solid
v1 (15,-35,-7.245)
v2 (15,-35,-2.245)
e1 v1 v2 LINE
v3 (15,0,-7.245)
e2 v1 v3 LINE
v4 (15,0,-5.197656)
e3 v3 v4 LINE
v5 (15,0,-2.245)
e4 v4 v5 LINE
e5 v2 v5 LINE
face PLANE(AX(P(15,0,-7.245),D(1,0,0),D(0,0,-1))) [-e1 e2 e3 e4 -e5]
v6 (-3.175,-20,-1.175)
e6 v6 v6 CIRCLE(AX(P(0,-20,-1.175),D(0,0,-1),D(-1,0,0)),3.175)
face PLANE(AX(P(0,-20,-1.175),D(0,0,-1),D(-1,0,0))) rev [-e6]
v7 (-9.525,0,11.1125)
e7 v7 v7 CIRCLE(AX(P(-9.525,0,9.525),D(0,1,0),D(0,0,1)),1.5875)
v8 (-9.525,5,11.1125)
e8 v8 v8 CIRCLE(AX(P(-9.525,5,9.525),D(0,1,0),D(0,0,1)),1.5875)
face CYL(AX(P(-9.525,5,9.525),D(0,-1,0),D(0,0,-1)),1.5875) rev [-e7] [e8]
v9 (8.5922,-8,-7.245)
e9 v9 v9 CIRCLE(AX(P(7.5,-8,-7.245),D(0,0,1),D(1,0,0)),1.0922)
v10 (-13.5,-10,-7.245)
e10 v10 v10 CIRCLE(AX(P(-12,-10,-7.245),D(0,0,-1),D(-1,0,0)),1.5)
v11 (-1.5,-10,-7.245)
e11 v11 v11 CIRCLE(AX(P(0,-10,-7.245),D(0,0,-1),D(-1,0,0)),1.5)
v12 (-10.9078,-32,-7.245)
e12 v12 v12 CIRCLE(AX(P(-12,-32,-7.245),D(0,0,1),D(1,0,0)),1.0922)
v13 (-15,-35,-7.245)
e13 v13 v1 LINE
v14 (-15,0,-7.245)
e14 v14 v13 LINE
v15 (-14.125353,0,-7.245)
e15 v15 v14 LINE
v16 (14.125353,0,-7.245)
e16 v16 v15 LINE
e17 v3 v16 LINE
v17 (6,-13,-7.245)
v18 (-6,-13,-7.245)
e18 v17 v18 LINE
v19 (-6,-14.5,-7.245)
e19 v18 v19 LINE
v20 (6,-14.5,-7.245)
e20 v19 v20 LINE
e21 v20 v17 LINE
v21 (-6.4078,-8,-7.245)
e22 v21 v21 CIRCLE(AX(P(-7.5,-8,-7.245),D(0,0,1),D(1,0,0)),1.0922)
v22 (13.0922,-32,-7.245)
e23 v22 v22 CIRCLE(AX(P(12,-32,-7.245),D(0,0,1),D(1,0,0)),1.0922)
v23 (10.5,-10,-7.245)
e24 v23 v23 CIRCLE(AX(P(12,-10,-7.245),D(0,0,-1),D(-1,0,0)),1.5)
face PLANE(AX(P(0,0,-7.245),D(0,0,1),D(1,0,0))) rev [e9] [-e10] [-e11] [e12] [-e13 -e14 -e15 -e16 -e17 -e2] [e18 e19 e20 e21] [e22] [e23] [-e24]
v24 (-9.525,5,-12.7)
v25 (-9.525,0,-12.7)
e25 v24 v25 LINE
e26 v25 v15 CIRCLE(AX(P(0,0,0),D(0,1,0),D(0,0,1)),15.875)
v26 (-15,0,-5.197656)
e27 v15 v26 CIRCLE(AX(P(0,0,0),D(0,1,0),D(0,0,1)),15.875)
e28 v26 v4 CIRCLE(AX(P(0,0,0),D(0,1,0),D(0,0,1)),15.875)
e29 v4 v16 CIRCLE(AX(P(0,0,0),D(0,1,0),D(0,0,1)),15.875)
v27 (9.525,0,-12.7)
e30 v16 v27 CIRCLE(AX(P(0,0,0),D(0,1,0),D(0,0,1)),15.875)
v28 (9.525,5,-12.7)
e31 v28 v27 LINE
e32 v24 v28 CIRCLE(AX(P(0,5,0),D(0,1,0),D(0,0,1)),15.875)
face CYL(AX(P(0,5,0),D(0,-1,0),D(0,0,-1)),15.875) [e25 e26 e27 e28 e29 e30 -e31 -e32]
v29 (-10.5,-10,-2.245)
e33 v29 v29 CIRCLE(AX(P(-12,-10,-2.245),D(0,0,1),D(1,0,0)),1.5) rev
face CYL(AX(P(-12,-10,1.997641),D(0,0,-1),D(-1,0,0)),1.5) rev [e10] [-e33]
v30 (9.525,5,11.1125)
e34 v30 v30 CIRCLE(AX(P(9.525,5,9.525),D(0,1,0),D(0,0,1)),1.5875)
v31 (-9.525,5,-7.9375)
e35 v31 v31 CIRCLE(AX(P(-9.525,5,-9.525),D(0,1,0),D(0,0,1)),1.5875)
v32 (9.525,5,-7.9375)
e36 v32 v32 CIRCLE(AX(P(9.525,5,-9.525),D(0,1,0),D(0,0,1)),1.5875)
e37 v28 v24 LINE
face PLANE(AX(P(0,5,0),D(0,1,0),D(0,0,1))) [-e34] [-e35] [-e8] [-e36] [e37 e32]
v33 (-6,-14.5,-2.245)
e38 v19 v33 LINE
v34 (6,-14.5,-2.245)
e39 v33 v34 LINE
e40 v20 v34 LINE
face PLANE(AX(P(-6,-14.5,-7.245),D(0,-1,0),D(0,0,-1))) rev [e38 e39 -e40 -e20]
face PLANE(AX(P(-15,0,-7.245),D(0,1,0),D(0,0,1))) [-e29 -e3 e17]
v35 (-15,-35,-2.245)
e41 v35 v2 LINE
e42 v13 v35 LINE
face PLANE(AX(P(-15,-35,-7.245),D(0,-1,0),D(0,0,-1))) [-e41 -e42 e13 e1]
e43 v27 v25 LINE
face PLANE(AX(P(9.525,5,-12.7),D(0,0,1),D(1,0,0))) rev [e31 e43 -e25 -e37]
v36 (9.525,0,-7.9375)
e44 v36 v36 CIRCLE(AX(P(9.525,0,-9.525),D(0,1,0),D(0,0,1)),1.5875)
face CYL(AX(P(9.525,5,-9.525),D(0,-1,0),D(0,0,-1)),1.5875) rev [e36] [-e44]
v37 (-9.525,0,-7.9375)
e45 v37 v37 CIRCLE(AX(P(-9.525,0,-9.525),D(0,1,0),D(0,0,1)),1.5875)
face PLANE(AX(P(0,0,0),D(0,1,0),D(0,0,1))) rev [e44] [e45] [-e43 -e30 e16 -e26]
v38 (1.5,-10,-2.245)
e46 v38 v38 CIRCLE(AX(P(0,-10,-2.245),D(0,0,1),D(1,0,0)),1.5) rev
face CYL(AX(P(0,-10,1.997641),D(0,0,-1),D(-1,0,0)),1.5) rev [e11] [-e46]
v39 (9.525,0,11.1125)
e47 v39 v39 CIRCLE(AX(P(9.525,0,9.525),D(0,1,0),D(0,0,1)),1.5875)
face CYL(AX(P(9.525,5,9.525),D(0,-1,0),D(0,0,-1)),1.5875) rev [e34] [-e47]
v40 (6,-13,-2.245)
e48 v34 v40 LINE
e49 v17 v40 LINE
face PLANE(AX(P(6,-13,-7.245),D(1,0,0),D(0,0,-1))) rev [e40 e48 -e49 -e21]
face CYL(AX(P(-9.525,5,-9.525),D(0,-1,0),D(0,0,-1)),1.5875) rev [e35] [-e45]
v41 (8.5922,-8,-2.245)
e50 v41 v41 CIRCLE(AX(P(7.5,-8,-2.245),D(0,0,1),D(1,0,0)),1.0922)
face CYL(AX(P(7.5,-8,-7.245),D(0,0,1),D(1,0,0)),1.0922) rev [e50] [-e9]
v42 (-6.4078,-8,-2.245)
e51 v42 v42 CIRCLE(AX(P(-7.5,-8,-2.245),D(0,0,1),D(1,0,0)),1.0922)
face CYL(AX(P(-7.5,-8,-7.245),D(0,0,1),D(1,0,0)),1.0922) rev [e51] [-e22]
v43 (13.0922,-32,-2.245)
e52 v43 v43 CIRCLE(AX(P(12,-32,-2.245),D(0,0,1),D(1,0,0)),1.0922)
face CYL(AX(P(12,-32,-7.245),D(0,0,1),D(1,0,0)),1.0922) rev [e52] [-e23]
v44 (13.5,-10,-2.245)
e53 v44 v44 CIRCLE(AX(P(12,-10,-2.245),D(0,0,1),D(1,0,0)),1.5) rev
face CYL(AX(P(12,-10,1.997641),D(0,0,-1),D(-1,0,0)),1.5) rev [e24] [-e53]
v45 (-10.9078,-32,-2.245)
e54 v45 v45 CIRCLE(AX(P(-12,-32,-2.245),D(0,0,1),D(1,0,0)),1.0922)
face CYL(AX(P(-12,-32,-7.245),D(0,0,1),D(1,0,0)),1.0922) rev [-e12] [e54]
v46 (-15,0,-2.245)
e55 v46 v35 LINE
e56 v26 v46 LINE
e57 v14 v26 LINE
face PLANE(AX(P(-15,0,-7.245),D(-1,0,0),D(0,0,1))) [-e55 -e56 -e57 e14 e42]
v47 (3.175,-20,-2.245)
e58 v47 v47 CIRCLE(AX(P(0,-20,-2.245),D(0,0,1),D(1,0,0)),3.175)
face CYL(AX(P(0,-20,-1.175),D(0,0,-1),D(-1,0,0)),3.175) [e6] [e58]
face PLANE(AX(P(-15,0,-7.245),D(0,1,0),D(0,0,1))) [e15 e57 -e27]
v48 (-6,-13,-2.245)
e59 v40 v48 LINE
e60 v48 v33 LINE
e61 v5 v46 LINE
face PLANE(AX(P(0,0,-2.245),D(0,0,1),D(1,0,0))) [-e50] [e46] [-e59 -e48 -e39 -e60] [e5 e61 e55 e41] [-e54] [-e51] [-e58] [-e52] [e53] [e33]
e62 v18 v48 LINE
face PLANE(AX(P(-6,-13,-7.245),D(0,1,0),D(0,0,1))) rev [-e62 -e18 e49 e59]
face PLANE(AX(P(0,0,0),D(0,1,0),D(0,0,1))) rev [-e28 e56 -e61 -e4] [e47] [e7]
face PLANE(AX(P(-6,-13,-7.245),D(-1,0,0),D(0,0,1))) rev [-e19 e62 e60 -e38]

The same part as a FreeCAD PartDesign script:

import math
import FreeCAD as App
import Part
import Sketcher
from FreeCAD import Vector

doc = App.newDocument("Part")
body = doc.addObject("PartDesign::Body", "Body")

# Sketch on XZ plane
sketch1 = doc.addObject("Sketcher::SketchObject", "Sketch")
body.addObject(sketch1)
sketch1.AttachmentSupport = (doc.XZ_Plane, [""])
sketch1.MapMode = "FlatFace"
sketch1.addGeometry(Part.LineSegment(Vector(9.525, -12.7, 0), Vector(-9.525, -12.7, 0)), False)
sketch1.addGeometry(Part.ArcOfCircle(Part.Circle(Vector(0, 0, 0), Vector(0, 0, 1), 15.875), math.radians(-53.130102), math.radians(233.130102)), False)
sketch1.addGeometry(Part.Circle(Vector(-9.525, 9.525, 0), Vector(0, 0, 1), 1.5875), False)
sketch1.addGeometry(Part.Circle(Vector(0, 12.7, 0), Vector(0, 0, 1), 1.5875), False)
sketch1.addGeometry(Part.Circle(Vector(9.525, 9.525, 0), Vector(0, 0, 1), 1.5875), False)
sketch1.addGeometry(Part.Circle(Vector(-12.7, 0, 0), Vector(0, 0, 1), 1.5875), False)
sketch1.addGeometry(Part.Circle(Vector(-9.525, -9.525, 0), Vector(0, 0, 1), 1.5875), False)
sketch1.addGeometry(Part.Circle(Vector(12.7, 0, 0), Vector(0, 0, 1), 1.5875), False)
sketch1.addGeometry(Part.Circle(Vector(9.525, -9.525, 0), Vector(0, 0, 1), 1.5875), False)
sketch1.addConstraint(Sketcher.Constraint("Coincident", 0, 1, 1, 1))
sketch1.addConstraint(Sketcher.Constraint("Coincident", 1, 2, 0, 2))
sketch1.addConstraint(Sketcher.Constraint("Horizontal", 0))
sketch1.addConstraint(Sketcher.Constraint("Coincident", 1, 3, -1, 1))
sketch1.addConstraint(Sketcher.Constraint("Equal", 2, 3))
sketch1.addConstraint(Sketcher.Constraint("Equal", 3, 4))
sketch1.addConstraint(Sketcher.Constraint("Equal", 4, 5))
sketch1.addConstraint(Sketcher.Constraint("Equal", 5, 6))
sketch1.addConstraint(Sketcher.Constraint("Equal", 6, 7))
sketch1.addConstraint(Sketcher.Constraint("Equal", 7, 8))
sketch1.addConstraint(Sketcher.Constraint("Symmetric", 4, 3, 6, 3, -1, 1))
sketch1.addConstraint(Sketcher.Constraint("Symmetric", 5, 3, 7, 3, -1, 1))
sketch1.addConstraint(Sketcher.Constraint("Symmetric", 2, 3, 8, 3, -1, 1))
sketch1.addConstraint(Sketcher.Constraint("Symmetric", 2, 3, 4, 3, -2))
sketch1.addConstraint(Sketcher.Constraint("PointOnObject", 3, 3, -2))
sketch1.addConstraint(Sketcher.Constraint("PointOnObject", 5, 3, -1))
sketch1.addConstraint(Sketcher.Constraint("Vertical", 8, 3, 0, 1))
sketch1.addConstraint(Sketcher.Constraint("Diameter", 2, 3.175))
sketch1.addConstraint(Sketcher.Constraint("Radius", 1, 15.875))
sketch1.addConstraint(Sketcher.Constraint("DistanceX", 0, 2, 0, 1, 19.05))
sketch1.addConstraint(Sketcher.Constraint("DistanceY", -1, 1, 3, 3, 12.7))
sketch1.addConstraint(Sketcher.Constraint("DistanceX", 5, 3, -1, 1, 12.7))
sketch1.addConstraint(Sketcher.Constraint("DistanceY", 6, 3, 2, 3, 19.05))
pad1 = doc.addObject("PartDesign::Pad", "Pad")
body.addObject(pad1)
pad1.Profile = sketch1
pad1.Length = 5
pad1.Reversed = True

# Sketch on XZ plane
sketch2 = doc.addObject("Sketcher::SketchObject", "Sketch001")
body.addObject(sketch2)
sketch2.AttachmentSupport = (doc.XZ_Plane, [""])
sketch2.MapMode = "FlatFace"
sketch2.addGeometry(Part.Circle(Vector(-12.7, 0, 0), Vector(0, 0, 1), 1.5875), False)
sketch2.addGeometry(Part.Circle(Vector(0, 12.7, 0), Vector(0, 0, 1), 1.5875), False)
sketch2.addGeometry(Part.Circle(Vector(12.7, 0, 0), Vector(0, 0, 1), 1.5875), False)
sketch2.addConstraint(Sketcher.Constraint("Equal", 0, 1))
sketch2.addConstraint(Sketcher.Constraint("Equal", 1, 2))
sketch2.addConstraint(Sketcher.Constraint("Symmetric", 0, 3, 2, 3, -1, 1))
sketch2.addConstraint(Sketcher.Constraint("PointOnObject", 0, 3, -1))
sketch2.addConstraint(Sketcher.Constraint("PointOnObject", 1, 3, -2))
sketch2.addConstraint(Sketcher.Constraint("Diameter", 0, 3.175))
sketch2.addConstraint(Sketcher.Constraint("DistanceX", 0, 3, -1, 1, 12.7))
sketch2.addConstraint(Sketcher.Constraint("DistanceY", -1, 1, 1, 3, 12.7))
pad2 = doc.addObject("PartDesign::Pad", "Pad001")
body.addObject(pad2)
pad2.Profile = sketch2
pad2.Length = 5
pad2.Reversed = True

# Sketch on XY plane
sketch3 = doc.addObject("Sketcher::SketchObject", "Sketch002")
body.addObject(sketch3)
sketch3.AttachmentSupport = (doc.XY_Plane, [""])
sketch3.MapMode = "FlatFace"
sketch3.AttachmentOffset = App.Placement(Vector(0, 0, -2.245), App.Rotation())
sketch3.addGeometry(Part.LineSegment(Vector(-15, 0, 0), Vector(-15, -35, 0)), False)
sketch3.addGeometry(Part.LineSegment(Vector(-15, -35, 0), Vector(15, -35, 0)), False)
sketch3.addGeometry(Part.LineSegment(Vector(15, -35, 0), Vector(15, 0, 0)), False)
sketch3.addGeometry(Part.LineSegment(Vector(15, 0, 0), Vector(-15, 0, 0)), False)
sketch3.addGeometry(Part.Circle(Vector(-12, -32, 0), Vector(0, 0, 1), 1.0922), False)
sketch3.addGeometry(Part.Circle(Vector(12, -32, 0), Vector(0, 0, 1), 1.0922), False)
sketch3.addGeometry(Part.Circle(Vector(-7.5, -8, 0), Vector(0, 0, 1), 1.0922), False)
sketch3.addGeometry(Part.Circle(Vector(0, -20, 0), Vector(0, 0, 1), 3.175), False)
sketch3.addGeometry(Part.LineSegment(Vector(6, -14.5, 0), Vector(-6, -14.5, 0)), False)
sketch3.addGeometry(Part.LineSegment(Vector(-6, -14.5, 0), Vector(-6, -13, 0)), False)
sketch3.addGeometry(Part.LineSegment(Vector(-6, -13, 0), Vector(6, -13, 0)), False)
sketch3.addGeometry(Part.LineSegment(Vector(6, -13, 0), Vector(6, -14.5, 0)), False)
sketch3.addGeometry(Part.Circle(Vector(7.5, -8, 0), Vector(0, 0, 1), 1.0922), False)
sketch3.addConstraint(Sketcher.Constraint("Coincident", 0, 2, 1, 1))
sketch3.addConstraint(Sketcher.Constraint("Coincident", 1, 2, 2, 1))
sketch3.addConstraint(Sketcher.Constraint("Coincident", 2, 2, 3, 1))
sketch3.addConstraint(Sketcher.Constraint("Coincident", 3, 2, 0, 1))
sketch3.addConstraint(Sketcher.Constraint("Coincident", 8, 2, 9, 1))
sketch3.addConstraint(Sketcher.Constraint("Coincident", 9, 2, 10, 1))
sketch3.addConstraint(Sketcher.Constraint("Coincident", 10, 2, 11, 1))
sketch3.addConstraint(Sketcher.Constraint("Coincident", 11, 2, 8, 1))
sketch3.addConstraint(Sketcher.Constraint("Vertical", 0))
sketch3.addConstraint(Sketcher.Constraint("Horizontal", 1))
sketch3.addConstraint(Sketcher.Constraint("Vertical", 2))
sketch3.addConstraint(Sketcher.Constraint("Horizontal", 3))
sketch3.addConstraint(Sketcher.Constraint("Horizontal", 8))
sketch3.addConstraint(Sketcher.Constraint("Vertical", 9))
sketch3.addConstraint(Sketcher.Constraint("Horizontal", 10))
sketch3.addConstraint(Sketcher.Constraint("Vertical", 11))
sketch3.addConstraint(Sketcher.Constraint("Equal", 4, 5))
sketch3.addConstraint(Sketcher.Constraint("Equal", 5, 6))
sketch3.addConstraint(Sketcher.Constraint("Equal", 6, 12))
sketch3.addConstraint(Sketcher.Constraint("Symmetric", 2, 2, 3, 2, -1, 1))
sketch3.addConstraint(Sketcher.Constraint("Symmetric", 4, 3, 5, 3, -2))
sketch3.addConstraint(Sketcher.Constraint("Symmetric", 6, 3, 12, 3, -2))
sketch3.addConstraint(Sketcher.Constraint("PointOnObject", 7, 3, -2))
sketch3.addConstraint(Sketcher.Constraint("Diameter", 7, 6.35))
sketch3.addConstraint(Sketcher.Constraint("DistanceX", 1, 1, 1, 2, 30.0))
sketch3.addConstraint(Sketcher.Constraint("DistanceX", 8, 2, 8, 1, 12.0))
sketch3.addConstraint(Sketcher.Constraint("DistanceY", 0, 2, 0, 1, 35.0))
sketch3.addConstraint(Sketcher.Constraint("DistanceY", 9, 1, 9, 2, 1.5))
sketch3.addConstraint(Sketcher.Constraint("DistanceX", 4, 3, -1, 1, 12.0))
sketch3.addConstraint(Sketcher.Constraint("DistanceY", 4, 3, -1, 1, 32.0))
sketch3.addConstraint(Sketcher.Constraint("DistanceY", 6, 3, -1, 1, 8.0))
sketch3.addConstraint(Sketcher.Constraint("DistanceY", 7, 3, -1, 1, 20.0))
sketch3.addConstraint(Sketcher.Constraint("DistanceX", 8, 2, -1, 1, 6.0))
sketch3.addConstraint(Sketcher.Constraint("DistanceY", 9, 2, -1, 1, 13.0))
sketch3.addConstraint(Sketcher.Constraint("DistanceX", 6, 3, 12, 3, 15.0))
sketch3.addConstraint(Sketcher.Constraint("Diameter", 4, 2.1844))
pad3 = doc.addObject("PartDesign::Pad", "Pad002")
body.addObject(pad3)
pad3.Profile = sketch3
pad3.Length = 5
pad3.Reversed = True

# Sketch on XY plane
sketch4 = doc.addObject("Sketcher::SketchObject", "Sketch003")
body.addObject(sketch4)
sketch4.AttachmentSupport = (doc.XY_Plane, [""])
sketch4.MapMode = "FlatFace"
sketch4.AttachmentOffset = App.Placement(Vector(0, 0, -7.245), App.Rotation())
sketch4.addGeometry(Part.Circle(Vector(0, -20, 0), Vector(0, 0, 1), 3.175), False)
sketch4.addConstraint(Sketcher.Constraint("PointOnObject", 0, 3, -2))
sketch4.addConstraint(Sketcher.Constraint("Diameter", 0, 6.35))
sketch4.addConstraint(Sketcher.Constraint("DistanceY", 0, 3, -1, 1, 20.0))
pad4 = doc.addObject("PartDesign::Pad", "Pad003")
body.addObject(pad4)
pad4.Profile = sketch4
pad4.Length = 6.07

# Sketch on XY plane
sketch5 = doc.addObject("Sketcher::SketchObject", "Sketch004")
body.addObject(sketch5)
sketch5.AttachmentSupport = (doc.XY_Plane, [""])
sketch5.MapMode = "FlatFace"
sketch5.AttachmentOffset = App.Placement(Vector(0, 0, -7.245), App.Rotation())
sketch5.addGeometry(Part.Circle(Vector(12, -10, 0), Vector(0, 0, 1), 1.5), False)
sketch5.addGeometry(Part.Circle(Vector(0, -10, 0), Vector(0, 0, 1), 1.5), False)
sketch5.addGeometry(Part.Circle(Vector(-12, -10, 0), Vector(0, 0, 1), 1.5), False)
sketch5.addConstraint(Sketcher.Constraint("Equal", 0, 1))
sketch5.addConstraint(Sketcher.Constraint("Equal", 1, 2))
sketch5.addConstraint(Sketcher.Constraint("Symmetric", 0, 3, 2, 3, -2))
sketch5.addConstraint(Sketcher.Constraint("PointOnObject", 1, 3, -2))
sketch5.addConstraint(Sketcher.Constraint("Horizontal", 0, 3, 1, 3))
sketch5.addConstraint(Sketcher.Constraint("Diameter", 0, 3.0))
sketch5.addConstraint(Sketcher.Constraint("DistanceX", -1, 1, 0, 3, 12.0))
sketch5.addConstraint(Sketcher.Constraint("DistanceY", 0, 3, -1, 1, 10.0))
pocket1 = doc.addObject("PartDesign::Pocket", "Pocket")
body.addObject(pocket1)
pocket1.Profile = sketch5
pocket1.Length = 5
pocket1.Reversed = True

doc.recompute()
